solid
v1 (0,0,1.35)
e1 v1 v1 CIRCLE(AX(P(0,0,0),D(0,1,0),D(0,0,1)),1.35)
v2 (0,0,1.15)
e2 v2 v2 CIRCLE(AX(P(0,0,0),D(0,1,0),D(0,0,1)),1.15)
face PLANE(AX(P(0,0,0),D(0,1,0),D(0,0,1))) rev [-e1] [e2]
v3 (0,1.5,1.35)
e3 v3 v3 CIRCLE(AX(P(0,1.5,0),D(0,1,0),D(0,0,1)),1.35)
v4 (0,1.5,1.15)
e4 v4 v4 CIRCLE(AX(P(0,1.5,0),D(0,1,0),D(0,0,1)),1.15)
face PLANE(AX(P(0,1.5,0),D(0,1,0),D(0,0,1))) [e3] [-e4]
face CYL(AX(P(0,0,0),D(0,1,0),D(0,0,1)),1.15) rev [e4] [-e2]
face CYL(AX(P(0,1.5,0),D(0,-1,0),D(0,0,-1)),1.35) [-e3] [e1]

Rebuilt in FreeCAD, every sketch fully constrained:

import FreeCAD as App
import Part
import Sketcher
Q = App.Units.Quantity

doc = App.newDocument("Part")
body = doc.addObject("PartDesign::Body", "Body")

sketch1 = body.newObject("Sketcher::SketchObject", "Sketch")
sketch1.AttachmentSupport = (doc.getObject("XZ_Plane"), [""])
sketch1.MapMode = "FlatFace"
sketch1.addGeometry(Part.Circle(App.Vector(0, 0, 0), App.Vector(0, 0, 1), 1.35), False)
sketch1.addConstraint(Sketcher.Constraint("Coincident", 0, 3, -1, 1))
sketch1.addConstraint(Sketcher.Constraint("Diameter", 0, Q("2.7 mm")))
pad1 = body.newObject("PartDesign::Pad", "Pad")
pad1.Profile = sketch1
pad1.Length = 1.5
pad1.Reversed = True

sketch2 = body.newObject("Sketcher::SketchObject", "Sketch001")
sketch2.AttachmentSupport = (doc.getObject("XZ_Plane"), [""])
sketch2.MapMode = "FlatFace"
sketch2.AttachmentOffset = App.Placement(App.Vector(0, 0, -1.5), App.Rotation())
sketch2.addGeometry(Part.Circle(App.Vector(0, 0, 0), App.Vector(0, 0, 1), 1.15), False)
sketch2.addConstraint(Sketcher.Constraint("Coincident", 0, 3, -1, 1))
sketch2.addConstraint(Sketcher.Constraint("Diameter", 0, Q("2.3 mm")))
pocket1 = body.newObject("PartDesign::Pocket", "Pocket")
pocket1.Profile = sketch2
pocket1.Type = "ThroughAll"
pocket1.Reversed = True

doc.recompute()
